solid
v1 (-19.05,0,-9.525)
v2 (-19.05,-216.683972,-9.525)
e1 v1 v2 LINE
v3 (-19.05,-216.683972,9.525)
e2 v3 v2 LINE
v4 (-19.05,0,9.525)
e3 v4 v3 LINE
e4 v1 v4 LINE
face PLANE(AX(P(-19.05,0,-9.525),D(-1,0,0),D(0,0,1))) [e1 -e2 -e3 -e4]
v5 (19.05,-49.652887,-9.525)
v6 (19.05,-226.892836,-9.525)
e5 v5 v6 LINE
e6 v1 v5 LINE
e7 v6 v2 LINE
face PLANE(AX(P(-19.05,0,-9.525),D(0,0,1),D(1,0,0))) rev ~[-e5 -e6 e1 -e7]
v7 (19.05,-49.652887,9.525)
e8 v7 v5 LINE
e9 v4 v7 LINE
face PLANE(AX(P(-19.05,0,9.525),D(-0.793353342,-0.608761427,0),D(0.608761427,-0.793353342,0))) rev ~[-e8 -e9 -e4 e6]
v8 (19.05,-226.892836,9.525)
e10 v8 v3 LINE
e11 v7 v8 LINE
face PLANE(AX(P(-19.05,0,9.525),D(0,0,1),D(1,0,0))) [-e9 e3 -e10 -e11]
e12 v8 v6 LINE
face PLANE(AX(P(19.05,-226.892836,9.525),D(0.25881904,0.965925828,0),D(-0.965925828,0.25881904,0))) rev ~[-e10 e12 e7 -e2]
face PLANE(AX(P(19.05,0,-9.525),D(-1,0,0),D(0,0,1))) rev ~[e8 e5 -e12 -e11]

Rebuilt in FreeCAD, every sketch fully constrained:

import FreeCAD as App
import Part
import Sketcher
Q = App.Units.Quantity


def add_polygon(sketch, points):
    """Adds a closed chain of lines whose ends are joined by coincident constraints."""
    first, n = sketch.GeometryCount, len(points)
    for a, b in zip(points, points[1:] + points[:1]):
        sketch.addGeometry(Part.LineSegment(App.Vector(*a, 0), App.Vector(*b, 0)), False)
    for i in range(n):
        sketch.addConstraint(Sketcher.Constraint("Coincident", first + i, 2, first + (i + 1) % n, 1))

doc = App.newDocument("Part")
body = doc.addObject("PartDesign::Body", "Body")

# Sketch on XZ plane
sketch1 = body.newObject("Sketcher::SketchObject", "Sketch")
sketch1.AttachmentSupport = (doc.getObject("XZ_Plane"), [""])
sketch1.MapMode = "FlatFace"
add_polygon(sketch1, [(-19.05, 9.525), (-19.05, -9.525), (19.05, -9.525), (19.05, 9.525)])  # lines 0-3
sketch1.addConstraint(Sketcher.Constraint("Vertical", 0))
sketch1.addConstraint(Sketcher.Constraint("Horizontal", 1))
sketch1.addConstraint(Sketcher.Constraint("Vertical", 2))
sketch1.addConstraint(Sketcher.Constraint("Horizontal", 3))
sketch1.addConstraint(Sketcher.Constraint("Symmetric", 0, 2, 2, 2, -1, 1))
sketch1.addConstraint(Sketcher.Constraint("DistanceX", 1, 1, 1, 2, Q("1.5 in")))
sketch1.addConstraint(Sketcher.Constraint("DistanceY", 0, 2, 0, 1, Q("0.75 in")))
pad1 = body.newObject("PartDesign::Pad", "Pad")
pad1.Profile = sketch1
pad1.Length = Q("20 in")

# Sketch on XY plane
sketch2 = body.newObject("Sketcher::SketchObject", "Sketch001")
sketch2.AttachmentSupport = (doc.getObject("XY_Plane"), [""])
sketch2.MapMode = "FlatFace"
sketch2.AttachmentOffset = App.Placement(App.Vector(0, 0, 0.375 * 25.4), App.Rotation())
add_polygon(sketch2, [(19.05, 0), (-19.05, 0), (19.05, -49.652887)])  # lines 0-2
add_polygon(sketch2, [(19.05, -226.892836), (-19.05, -216.683972), (-19.05, -508), (19.05, -508)])  # lines 3-6
sketch2.addConstraint(Sketcher.Constraint("Horizontal", 0))
sketch2.addConstraint(Sketcher.Constraint("Vertical", 2))
sketch2.addConstraint(Sketcher.Constraint("Vertical", 4))
sketch2.addConstraint(Sketcher.Constraint("Horizontal", 5))
sketch2.addConstraint(Sketcher.Constraint("Vertical", 6))
sketch2.addConstraint(Sketcher.Constraint("Symmetric", 0, 2, 2, 2, -1, 1))
sketch2.addConstraint(Sketcher.Constraint("Vertical", 0, 2, 3, 2))
sketch2.addConstraint(Sketcher.Constraint("Vertical", 2, 2, 5, 2))
sketch2.addConstraint(Sketcher.Constraint("DistanceX", 0, 2, 0, 1, Q("1.5 in")))
sketch2.addConstraint(Sketcher.Constraint("DistanceY", 4, 2, -1, 1, Q("20 in")))
sketch2.addConstraint(Sketcher.Constraint("Angle", 3, Q("165 deg")))
sketch2.addConstraint(Sketcher.Constraint("Angle", 1, Q("-52.5 deg")))
sketch2.addConstraint(Sketcher.Constraint("DistanceY", 4, 2, 4, 1, Q("291.316028 mm")))
pocket1 = body.newObject("PartDesign::Pocket", "Pocket")
pocket1.Profile = sketch2
pocket1.Type = "ThroughAll"

doc.recompute()
